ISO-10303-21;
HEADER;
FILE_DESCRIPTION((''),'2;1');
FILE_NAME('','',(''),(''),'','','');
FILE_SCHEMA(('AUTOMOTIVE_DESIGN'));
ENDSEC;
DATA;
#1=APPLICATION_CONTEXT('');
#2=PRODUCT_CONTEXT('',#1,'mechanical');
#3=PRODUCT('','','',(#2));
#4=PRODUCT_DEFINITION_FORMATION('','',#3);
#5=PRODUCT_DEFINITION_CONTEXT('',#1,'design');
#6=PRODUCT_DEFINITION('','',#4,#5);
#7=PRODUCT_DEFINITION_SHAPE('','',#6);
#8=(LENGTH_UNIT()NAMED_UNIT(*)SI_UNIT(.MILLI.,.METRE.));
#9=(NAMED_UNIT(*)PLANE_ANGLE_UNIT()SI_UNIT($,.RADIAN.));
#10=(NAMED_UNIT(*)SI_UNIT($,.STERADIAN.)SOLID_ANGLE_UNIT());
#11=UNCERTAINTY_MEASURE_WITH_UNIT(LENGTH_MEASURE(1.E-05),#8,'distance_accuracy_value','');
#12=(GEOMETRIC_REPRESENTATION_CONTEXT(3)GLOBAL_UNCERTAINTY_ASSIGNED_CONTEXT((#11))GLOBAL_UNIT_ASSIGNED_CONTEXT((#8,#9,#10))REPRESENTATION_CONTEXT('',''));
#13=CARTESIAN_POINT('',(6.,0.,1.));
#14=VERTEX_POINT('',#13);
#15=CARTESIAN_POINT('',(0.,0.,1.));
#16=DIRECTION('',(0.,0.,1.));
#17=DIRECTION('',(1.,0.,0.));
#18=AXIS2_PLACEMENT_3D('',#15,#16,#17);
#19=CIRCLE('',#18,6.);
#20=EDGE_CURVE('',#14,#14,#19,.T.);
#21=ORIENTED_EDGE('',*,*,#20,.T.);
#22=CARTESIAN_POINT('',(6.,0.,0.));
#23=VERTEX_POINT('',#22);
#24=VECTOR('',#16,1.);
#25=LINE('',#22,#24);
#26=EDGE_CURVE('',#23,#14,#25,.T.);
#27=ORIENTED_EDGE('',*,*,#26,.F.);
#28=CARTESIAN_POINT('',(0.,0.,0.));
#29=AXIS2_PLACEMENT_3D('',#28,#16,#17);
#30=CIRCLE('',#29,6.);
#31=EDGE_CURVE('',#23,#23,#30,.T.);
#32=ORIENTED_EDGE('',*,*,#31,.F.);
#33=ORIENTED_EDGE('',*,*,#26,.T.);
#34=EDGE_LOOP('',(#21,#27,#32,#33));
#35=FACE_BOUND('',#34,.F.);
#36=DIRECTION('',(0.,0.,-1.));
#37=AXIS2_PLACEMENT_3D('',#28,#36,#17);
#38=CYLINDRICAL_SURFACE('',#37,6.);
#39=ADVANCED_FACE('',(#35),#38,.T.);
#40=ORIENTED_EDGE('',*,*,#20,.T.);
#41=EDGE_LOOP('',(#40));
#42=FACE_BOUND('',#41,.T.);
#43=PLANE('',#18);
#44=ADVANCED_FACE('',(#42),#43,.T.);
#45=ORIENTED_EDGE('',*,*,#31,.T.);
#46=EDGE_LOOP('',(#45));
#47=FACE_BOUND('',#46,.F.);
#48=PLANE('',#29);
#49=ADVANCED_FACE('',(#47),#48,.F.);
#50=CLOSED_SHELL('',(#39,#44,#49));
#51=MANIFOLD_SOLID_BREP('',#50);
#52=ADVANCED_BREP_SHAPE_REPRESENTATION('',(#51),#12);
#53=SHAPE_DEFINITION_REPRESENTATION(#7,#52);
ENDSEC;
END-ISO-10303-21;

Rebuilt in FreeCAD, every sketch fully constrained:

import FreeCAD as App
import Part
import Sketcher
from FreeCAD import Vector

doc = App.newDocument("Part")
params = doc.addObject("Spreadsheet::Sheet", "Params")
for row, (alias, value) in enumerate([
    ("sketch1_diameter", "12 mm"),
    ("pad1_length", "1 mm"),
], start=1):
    params.set(f"A{row}", alias)
    params.set(f"B{row}", "=" + value)
    params.setAlias(f"B{row}", alias)

body = doc.addObject("PartDesign::Body", "Body")

# Sketch on XY plane
sketch1 = body.newObject("Sketcher::SketchObject", "Sketch")
sketch1.AttachmentSupport = (doc.getObject("XY_Plane"), [""])
sketch1.MapMode = "FlatFace"
sketch1.addGeometry(Part.Circle(Vector(0, 0, 0), Vector(0, 0, 1), 6), False)
sketch1.addConstraint([
    Sketcher.Constraint("Coincident", 0, 3, -1, 1),
    Sketcher.Constraint("Diameter", 0, 12.0),
])
sketch1.setExpression("Constraints[1]", "Params.sketch1_diameter")
pad1 = body.newObject("PartDesign::Pad", "Pad")
pad1.Profile = sketch1
pad1.setExpression("Length", "Params.pad1_length")

doc.recompute()
